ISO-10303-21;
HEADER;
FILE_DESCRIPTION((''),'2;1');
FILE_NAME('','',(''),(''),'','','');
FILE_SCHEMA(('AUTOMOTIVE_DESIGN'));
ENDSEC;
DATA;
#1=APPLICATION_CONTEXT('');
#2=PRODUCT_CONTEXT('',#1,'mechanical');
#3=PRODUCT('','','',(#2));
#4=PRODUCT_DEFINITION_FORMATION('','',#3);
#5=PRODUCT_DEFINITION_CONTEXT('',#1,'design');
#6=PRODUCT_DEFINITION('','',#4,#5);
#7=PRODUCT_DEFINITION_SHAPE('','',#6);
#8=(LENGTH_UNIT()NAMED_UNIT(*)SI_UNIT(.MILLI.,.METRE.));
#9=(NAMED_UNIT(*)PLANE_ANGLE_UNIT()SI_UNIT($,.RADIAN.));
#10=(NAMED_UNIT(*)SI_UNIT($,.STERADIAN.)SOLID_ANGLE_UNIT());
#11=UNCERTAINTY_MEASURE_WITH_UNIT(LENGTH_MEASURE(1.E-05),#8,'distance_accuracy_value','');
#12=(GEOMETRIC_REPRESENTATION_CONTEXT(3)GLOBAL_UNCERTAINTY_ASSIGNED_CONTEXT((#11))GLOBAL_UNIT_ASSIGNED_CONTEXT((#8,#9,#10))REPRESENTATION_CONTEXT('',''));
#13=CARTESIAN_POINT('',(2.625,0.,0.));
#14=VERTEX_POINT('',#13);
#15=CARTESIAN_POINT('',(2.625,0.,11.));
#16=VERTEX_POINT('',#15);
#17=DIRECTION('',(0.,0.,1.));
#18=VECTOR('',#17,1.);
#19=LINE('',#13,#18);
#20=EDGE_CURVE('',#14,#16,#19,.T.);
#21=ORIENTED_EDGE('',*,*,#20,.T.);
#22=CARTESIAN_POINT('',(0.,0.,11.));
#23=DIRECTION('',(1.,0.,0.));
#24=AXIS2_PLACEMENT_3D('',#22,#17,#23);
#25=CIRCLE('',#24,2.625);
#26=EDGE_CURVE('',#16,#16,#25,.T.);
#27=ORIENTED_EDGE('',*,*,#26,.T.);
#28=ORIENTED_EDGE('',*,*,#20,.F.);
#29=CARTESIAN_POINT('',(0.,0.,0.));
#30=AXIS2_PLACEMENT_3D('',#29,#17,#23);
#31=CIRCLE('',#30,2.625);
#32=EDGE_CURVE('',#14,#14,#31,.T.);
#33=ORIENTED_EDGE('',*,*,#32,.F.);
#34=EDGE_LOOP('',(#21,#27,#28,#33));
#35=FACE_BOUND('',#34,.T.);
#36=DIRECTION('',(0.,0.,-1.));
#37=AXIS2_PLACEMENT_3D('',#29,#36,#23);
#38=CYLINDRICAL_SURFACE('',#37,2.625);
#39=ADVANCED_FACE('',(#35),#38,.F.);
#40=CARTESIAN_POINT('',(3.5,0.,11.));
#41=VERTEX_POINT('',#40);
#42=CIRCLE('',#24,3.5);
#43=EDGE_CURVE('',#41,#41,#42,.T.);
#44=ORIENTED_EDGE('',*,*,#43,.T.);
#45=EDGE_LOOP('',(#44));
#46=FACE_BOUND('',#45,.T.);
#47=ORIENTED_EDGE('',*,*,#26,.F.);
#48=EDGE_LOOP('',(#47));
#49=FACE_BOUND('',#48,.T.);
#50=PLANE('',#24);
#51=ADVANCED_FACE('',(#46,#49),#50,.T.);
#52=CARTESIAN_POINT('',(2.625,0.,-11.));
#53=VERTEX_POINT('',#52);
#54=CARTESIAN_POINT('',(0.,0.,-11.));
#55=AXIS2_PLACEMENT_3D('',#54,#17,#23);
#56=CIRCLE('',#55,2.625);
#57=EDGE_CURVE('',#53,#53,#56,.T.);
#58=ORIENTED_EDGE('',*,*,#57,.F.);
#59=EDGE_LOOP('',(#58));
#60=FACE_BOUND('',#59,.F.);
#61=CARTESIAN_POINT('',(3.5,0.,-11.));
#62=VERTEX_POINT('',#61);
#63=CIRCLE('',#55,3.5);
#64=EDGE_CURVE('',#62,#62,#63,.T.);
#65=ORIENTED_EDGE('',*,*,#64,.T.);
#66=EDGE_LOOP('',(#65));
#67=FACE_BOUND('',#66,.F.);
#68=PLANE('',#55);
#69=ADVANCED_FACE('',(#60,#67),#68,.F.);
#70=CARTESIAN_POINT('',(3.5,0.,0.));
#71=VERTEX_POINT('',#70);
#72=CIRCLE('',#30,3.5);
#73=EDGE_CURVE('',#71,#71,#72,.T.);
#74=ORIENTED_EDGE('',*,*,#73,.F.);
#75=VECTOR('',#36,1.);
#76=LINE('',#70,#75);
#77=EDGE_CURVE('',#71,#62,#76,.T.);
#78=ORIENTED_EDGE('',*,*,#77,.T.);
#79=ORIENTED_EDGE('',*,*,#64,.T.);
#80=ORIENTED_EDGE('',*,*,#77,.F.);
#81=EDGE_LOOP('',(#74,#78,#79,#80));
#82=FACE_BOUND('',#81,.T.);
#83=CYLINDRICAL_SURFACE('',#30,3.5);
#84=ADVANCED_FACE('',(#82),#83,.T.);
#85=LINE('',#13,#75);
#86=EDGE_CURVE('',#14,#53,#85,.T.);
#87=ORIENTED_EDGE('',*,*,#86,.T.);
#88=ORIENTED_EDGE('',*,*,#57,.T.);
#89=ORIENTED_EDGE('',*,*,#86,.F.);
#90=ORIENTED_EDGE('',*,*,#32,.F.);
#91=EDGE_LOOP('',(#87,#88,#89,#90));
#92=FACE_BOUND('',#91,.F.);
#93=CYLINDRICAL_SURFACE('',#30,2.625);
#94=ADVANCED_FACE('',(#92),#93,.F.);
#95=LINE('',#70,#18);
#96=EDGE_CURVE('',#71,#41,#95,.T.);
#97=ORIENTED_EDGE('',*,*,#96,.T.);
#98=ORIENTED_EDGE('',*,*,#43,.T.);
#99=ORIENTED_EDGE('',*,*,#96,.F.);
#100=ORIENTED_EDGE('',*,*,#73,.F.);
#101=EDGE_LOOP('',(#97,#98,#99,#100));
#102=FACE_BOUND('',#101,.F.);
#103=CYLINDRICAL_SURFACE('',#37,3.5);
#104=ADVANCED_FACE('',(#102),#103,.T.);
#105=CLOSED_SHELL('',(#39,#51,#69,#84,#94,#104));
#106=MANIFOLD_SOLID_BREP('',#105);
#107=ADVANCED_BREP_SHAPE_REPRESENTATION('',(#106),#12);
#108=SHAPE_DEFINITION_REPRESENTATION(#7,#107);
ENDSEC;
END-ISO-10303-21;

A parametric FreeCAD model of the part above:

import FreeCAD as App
import Part
import Sketcher

V = App.Vector
Q = App.Units.Quantity

doc = App.newDocument("Part")
body = doc.addObject("PartDesign::Body", "Body")

# Sketch on XY plane
sketch1 = body.newObject("Sketcher::SketchObject", "Sketch")
sketch1.AttachmentSupport = (doc.getObject("XY_Plane"), [""])
sketch1.MapMode = "FlatFace"
sketch1.addGeometry([
    Part.Circle(V(0, 0, 0), V(0, 0, 1), 3.5),
    Part.Circle(V(0, 0, 0), V(0, 0, 1), 2.6),
], False)
sketch1.addConstraint([
    Sketcher.Constraint("Coincident", 0, 3, -1, 1),
    Sketcher.Constraint("Coincident", 1, 3, -1, 1),
    Sketcher.Constraint("Diameter", 0, Q("7 mm")),
    Sketcher.Constraint("Diameter", 1, Q("5.25 mm")),
])
pad1 = body.newObject("PartDesign::Pad", "Pad")
pad1.Profile = sketch1
pad1.Length = 22
pad1.Midplane = True

doc.recompute()
